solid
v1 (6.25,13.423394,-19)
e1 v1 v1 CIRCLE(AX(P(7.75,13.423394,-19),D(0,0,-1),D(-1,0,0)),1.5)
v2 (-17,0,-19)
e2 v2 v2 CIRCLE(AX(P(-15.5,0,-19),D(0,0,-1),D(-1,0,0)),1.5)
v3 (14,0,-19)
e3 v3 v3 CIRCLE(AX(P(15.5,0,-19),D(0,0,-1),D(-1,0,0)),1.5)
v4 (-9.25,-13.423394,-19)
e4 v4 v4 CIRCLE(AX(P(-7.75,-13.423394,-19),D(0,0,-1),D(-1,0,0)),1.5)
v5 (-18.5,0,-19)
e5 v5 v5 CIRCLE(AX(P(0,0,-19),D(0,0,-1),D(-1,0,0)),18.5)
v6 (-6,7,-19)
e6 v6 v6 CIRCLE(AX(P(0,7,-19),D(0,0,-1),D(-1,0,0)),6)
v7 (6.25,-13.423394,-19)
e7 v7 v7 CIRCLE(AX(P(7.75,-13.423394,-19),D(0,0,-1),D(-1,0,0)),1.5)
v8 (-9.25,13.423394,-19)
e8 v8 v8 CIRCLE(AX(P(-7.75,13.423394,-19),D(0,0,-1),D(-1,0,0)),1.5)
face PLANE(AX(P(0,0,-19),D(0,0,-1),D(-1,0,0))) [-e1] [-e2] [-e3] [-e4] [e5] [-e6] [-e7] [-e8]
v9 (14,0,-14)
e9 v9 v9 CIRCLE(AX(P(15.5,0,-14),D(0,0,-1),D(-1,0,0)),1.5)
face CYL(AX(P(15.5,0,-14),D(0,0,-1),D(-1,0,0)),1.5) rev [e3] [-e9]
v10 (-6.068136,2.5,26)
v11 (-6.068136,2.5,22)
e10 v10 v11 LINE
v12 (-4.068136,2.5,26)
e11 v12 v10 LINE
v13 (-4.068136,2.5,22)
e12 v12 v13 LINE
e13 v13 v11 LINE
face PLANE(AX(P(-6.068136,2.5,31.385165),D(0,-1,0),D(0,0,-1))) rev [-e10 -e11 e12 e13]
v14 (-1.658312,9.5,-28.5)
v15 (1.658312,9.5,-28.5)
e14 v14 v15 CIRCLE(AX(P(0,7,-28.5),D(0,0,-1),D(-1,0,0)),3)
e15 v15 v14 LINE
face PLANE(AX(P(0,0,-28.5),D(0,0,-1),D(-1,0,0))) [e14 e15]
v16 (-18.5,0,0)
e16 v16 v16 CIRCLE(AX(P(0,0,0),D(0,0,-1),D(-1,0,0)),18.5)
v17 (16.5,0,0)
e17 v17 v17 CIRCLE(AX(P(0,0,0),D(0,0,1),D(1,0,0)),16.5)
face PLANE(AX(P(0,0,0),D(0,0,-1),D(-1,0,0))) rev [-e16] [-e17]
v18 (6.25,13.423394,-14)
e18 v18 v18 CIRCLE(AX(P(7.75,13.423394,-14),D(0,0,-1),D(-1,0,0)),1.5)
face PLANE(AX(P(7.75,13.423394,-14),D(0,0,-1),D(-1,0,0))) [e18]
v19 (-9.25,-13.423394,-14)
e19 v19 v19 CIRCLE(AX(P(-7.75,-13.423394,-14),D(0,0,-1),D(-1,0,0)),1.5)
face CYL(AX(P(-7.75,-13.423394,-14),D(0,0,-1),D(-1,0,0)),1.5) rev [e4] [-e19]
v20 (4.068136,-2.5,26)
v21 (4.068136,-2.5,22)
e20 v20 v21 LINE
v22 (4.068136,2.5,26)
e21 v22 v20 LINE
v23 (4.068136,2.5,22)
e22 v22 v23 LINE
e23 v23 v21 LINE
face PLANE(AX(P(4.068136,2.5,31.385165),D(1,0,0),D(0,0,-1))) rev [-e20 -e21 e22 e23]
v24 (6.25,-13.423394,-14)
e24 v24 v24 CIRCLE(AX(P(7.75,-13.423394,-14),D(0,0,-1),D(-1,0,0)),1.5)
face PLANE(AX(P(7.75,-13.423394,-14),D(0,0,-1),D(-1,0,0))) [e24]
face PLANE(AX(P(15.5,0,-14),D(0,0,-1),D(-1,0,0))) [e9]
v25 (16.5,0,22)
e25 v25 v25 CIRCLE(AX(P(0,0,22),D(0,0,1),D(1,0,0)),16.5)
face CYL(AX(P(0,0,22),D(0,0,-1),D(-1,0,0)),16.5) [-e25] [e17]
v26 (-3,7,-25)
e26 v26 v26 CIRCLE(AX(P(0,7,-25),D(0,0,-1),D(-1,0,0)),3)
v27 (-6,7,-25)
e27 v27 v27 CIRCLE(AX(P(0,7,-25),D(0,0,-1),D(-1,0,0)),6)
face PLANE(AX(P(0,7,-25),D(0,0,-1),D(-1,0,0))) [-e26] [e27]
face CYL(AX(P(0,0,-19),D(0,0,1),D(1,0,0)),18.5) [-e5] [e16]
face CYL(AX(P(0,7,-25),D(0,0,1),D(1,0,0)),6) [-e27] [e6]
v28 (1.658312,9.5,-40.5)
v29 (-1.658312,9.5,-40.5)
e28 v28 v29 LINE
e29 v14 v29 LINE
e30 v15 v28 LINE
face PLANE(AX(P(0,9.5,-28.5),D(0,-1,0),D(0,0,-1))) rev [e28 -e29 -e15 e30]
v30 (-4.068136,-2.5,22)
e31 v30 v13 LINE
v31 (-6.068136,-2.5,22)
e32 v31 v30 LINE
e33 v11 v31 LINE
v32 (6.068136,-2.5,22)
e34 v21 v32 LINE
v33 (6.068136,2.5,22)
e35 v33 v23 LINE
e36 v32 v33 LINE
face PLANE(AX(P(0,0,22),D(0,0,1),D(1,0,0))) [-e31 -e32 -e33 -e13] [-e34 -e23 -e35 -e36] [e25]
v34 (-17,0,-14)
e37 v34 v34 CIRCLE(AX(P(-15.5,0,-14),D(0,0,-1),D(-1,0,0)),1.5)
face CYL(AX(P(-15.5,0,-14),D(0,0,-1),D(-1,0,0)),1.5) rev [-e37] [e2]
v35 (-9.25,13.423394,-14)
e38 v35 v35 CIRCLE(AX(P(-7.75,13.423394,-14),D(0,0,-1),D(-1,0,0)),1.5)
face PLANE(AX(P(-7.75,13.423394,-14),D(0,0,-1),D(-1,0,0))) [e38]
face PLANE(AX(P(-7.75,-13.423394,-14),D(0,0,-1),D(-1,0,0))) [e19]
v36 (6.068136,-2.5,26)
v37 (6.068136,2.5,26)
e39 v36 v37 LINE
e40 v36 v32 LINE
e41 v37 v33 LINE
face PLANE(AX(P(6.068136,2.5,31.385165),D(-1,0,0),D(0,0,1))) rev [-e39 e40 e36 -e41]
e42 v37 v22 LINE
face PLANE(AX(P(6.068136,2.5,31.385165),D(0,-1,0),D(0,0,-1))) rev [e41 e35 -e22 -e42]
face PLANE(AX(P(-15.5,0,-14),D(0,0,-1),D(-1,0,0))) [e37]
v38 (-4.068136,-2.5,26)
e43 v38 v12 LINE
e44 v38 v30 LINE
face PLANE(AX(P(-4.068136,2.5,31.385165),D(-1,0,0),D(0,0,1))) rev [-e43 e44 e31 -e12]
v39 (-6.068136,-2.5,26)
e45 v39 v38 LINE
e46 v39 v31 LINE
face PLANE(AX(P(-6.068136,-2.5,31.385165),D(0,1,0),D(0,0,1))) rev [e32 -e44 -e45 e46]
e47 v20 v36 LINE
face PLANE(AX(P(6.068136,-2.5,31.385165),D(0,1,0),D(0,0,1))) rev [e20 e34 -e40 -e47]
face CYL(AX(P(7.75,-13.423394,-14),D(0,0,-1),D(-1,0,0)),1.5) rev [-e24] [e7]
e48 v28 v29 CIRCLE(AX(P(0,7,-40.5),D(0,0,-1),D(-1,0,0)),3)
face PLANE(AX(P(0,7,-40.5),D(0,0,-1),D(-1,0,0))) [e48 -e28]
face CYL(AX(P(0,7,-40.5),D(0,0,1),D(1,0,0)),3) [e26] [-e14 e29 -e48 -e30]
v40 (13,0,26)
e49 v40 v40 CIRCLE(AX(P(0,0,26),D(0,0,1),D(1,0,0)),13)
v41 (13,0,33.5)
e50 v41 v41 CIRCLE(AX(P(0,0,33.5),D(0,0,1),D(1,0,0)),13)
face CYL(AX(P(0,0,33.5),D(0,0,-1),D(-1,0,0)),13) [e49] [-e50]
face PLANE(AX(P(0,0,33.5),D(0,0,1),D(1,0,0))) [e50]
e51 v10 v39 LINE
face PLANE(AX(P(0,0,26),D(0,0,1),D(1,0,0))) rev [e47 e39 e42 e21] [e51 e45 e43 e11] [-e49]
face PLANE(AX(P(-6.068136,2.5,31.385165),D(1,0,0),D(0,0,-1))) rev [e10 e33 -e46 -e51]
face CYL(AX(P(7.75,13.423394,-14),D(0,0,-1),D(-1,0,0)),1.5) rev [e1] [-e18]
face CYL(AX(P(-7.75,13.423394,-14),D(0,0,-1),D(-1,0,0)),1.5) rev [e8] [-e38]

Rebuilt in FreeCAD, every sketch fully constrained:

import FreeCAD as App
import Part
import Sketcher
Q = App.Units.Quantity

doc = App.newDocument("Part")
body = doc.addObject("PartDesign::Body", "Body")

sketch1 = doc.addObject("Sketcher::SketchObject", "Sketch")
body.addObject(sketch1)
sketch1.AttachmentSupport = (doc.XY_Plane, [""])
sketch1.MapMode = "FlatFace"
sketch1.addGeometry(Part.Circle(App.Vector(0, 0, 0), App.Vector(0, 0, 1), 16.5), False)
sketch1.addConstraint(Sketcher.Constraint("Coincident", 0, 3, -1, 1))
sketch1.addConstraint(Sketcher.Constraint("Diameter", 0, Q("33 mm")))
pad1 = doc.addObject("PartDesign::Pad", "Pad")
body.addObject(pad1)
pad1.Profile = sketch1
pad1.Length = 22

sketch2 = doc.addObject("Sketcher::SketchObject", "Sketch001")
body.addObject(sketch2)
sketch2.AttachmentSupport = (doc.XY_Plane, [""])
sketch2.MapMode = "FlatFace"
sketch2.addGeometry(Part.Circle(App.Vector(0, 0, 0), App.Vector(0, 0, 1), 18.5), False)
sketch2.addConstraint(Sketcher.Constraint("Coincident", 0, 3, -1, 1))
sketch2.addConstraint(Sketcher.Constraint("Diameter", 0, Q("37 mm")))
pad2 = doc.addObject("PartDesign::Pad", "Pad001")
body.addObject(pad2)
pad2.Profile = sketch2
pad2.Length = 19
pad2.Reversed = True

sketch3 = doc.addObject("Sketcher::SketchObject", "Sketch002")
body.addObject(sketch3)
sketch3.AttachmentSupport = (doc.XY_Plane, [""])
sketch3.MapMode = "FlatFace"
sketch3.AttachmentOffset = App.Placement(App.Vector(0, 0, -19), App.Rotation())
sketch3.addGeometry(Part.Circle(App.Vector(0, 7, 0), App.Vector(0, 0, 1), 6), False)
sketch3.addConstraint(Sketcher.Constraint("PointOnObject", 0, 3, -2))
sketch3.addConstraint(Sketcher.Constraint("Diameter", 0, Q("12 mm")))
sketch3.addConstraint(Sketcher.Constraint("DistanceY", -1, 1, 0, 3, Q("7 mm")))
pad3 = doc.addObject("PartDesign::Pad", "Pad002")
body.addObject(pad3)
pad3.Profile = sketch3
pad3.Length = 6
pad3.Reversed = True

sketch4 = doc.addObject("Sketcher::SketchObject", "Sketch003")
body.addObject(sketch4)
sketch4.AttachmentSupport = (doc.XY_Plane, [""])
sketch4.MapMode = "FlatFace"
sketch4.AttachmentOffset = App.Placement(App.Vector(0, 0, -25), App.Rotation())
sketch4.addGeometry(Part.Circle(App.Vector(0, 7, 0), App.Vector(0, 0, 1), 3), False)
sketch4.addConstraint(Sketcher.Constraint("PointOnObject", 0, 3, -2))
sketch4.addConstraint(Sketcher.Constraint("Diameter", 0, Q("6 mm")))
sketch4.addConstraint(Sketcher.Constraint("DistanceY", -1, 1, 0, 3, Q("7 mm")))
pad4 = doc.addObject("PartDesign::Pad", "Pad003")
body.addObject(pad4)
pad4.Profile = sketch4
pad4.Length = 15.5
pad4.Reversed = True

sketch5 = doc.addObject("Sketcher::SketchObject", "Sketch004")
body.addObject(sketch5)
sketch5.AttachmentSupport = (doc.XY_Plane, [""])
sketch5.MapMode = "FlatFace"
sketch5.AttachmentOffset = App.Placement(App.Vector(0, 0, -40.5), App.Rotation())
sketch5.addGeometry(Part.LineSegment(App.Vector(80.66143, 9.5, 0), App.Vector(-80.66143, 9.5, 0)), False)
sketch5.addGeometry(Part.LineSegment(App.Vector(-80.66143, 9.5, 0), App.Vector(-80.66143, 167.506235, 0)), False)
sketch5.addGeometry(Part.LineSegment(App.Vector(-80.66143, 167.506235, 0), App.Vector(80.66143, 167.506235, 0)), False)
sketch5.addGeometry(Part.LineSegment(App.Vector(80.66143, 167.506235, 0), App.Vector(80.66143, 9.5, 0)), False)
sketch5.addConstraint(Sketcher.Constraint("Coincident", 0, 2, 1, 1))
sketch5.addConstraint(Sketcher.Constraint("Coincident", 1, 2, 2, 1))
sketch5.addConstraint(Sketcher.Constraint("Coincident", 2, 2, 3, 1))
sketch5.addConstraint(Sketcher.Constraint("Coincident", 3, 2, 0, 1))
sketch5.addConstraint(Sketcher.Constraint("Horizontal", 0))
sketch5.addConstraint(Sketcher.Constraint("Vertical", 1))
sketch5.addConstraint(Sketcher.Constraint("Horizontal", 2))
sketch5.addConstraint(Sketcher.Constraint("Vertical", 3))
sketch5.addConstraint(Sketcher.Constraint("DistanceY", -1, 1, 0, 2, Q("9.5 mm")))
sketch5.addConstraint(Sketcher.Constraint("DistanceX", 0, 2, 0, 1, Q("161.32286 mm")))
sketch5.addConstraint(Sketcher.Constraint("DistanceY", 1, 1, 1, 2, Q("158.006235 mm")))
sketch5.addConstraint(Sketcher.Constraint("DistanceX", 0, 2, -1, 1, Q("80.66143 mm")))
pocket1 = doc.addObject("PartDesign::Pocket", "Pocket")
body.addObject(pocket1)
pocket1.Profile = sketch5
pocket1.Length = 12
pocket1.Reversed = True

sketch6 = doc.addObject("Sketcher::SketchObject", "Sketch005")
body.addObject(sketch6)
sketch6.AttachmentSupport = (doc.XY_Plane, [""])
sketch6.MapMode = "FlatFace"
sketch6.AttachmentOffset = App.Placement(App.Vector(0, 0, -19), App.Rotation())
sketch6.addGeometry(Part.Circle(App.Vector(15.5, 0, 0), App.Vector(0, 0, 1), 1.5), False)
sketch6.addGeometry(Part.Circle(App.Vector(7.75, 13.423394, 0), App.Vector(0, 0, 1), 1.5), False)
sketch6.addGeometry(Part.Circle(App.Vector(-7.75, 13.423394, 0), App.Vector(0, 0, 1), 1.5), False)
sketch6.addGeometry(Part.Circle(App.Vector(-15.5, 0, 0), App.Vector(0, 0, 1), 1.5), False)
sketch6.addGeometry(Part.Circle(App.Vector(-7.75, -13.423394, 0), App.Vector(0, 0, 1), 1.5), False)
sketch6.addGeometry(Part.Circle(App.Vector(7.75, -13.423394, 0), App.Vector(0, 0, 1), 1.5), False)
sketch6.addConstraint(Sketcher.Constraint("Equal", 0, 1))
sketch6.addConstraint(Sketcher.Constraint("Equal", 1, 2))
sketch6.addConstraint(Sketcher.Constraint("Equal", 2, 3))
sketch6.addConstraint(Sketcher.Constraint("Equal", 3, 4))
sketch6.addConstraint(Sketcher.Constraint("Equal", 4, 5))
sketch6.addConstraint(Sketcher.Constraint("Symmetric", 0, 3, 3, 3, -1, 1))
sketch6.addConstraint(Sketcher.Constraint("Symmetric", 1, 3, 4, 3, -1, 1))
sketch6.addConstraint(Sketcher.Constraint("Symmetric", 2, 3, 5, 3, -1, 1))
sketch6.addConstraint(Sketcher.Constraint("Symmetric", 1, 3, 2, 3, -2))
sketch6.addConstraint(Sketcher.Constraint("PointOnObject", 0, 3, -1))
sketch6.addConstraint(Sketcher.Constraint("Diameter", 0, Q("3 mm")))
sketch6.addConstraint(Sketcher.Constraint("DistanceX", 3, 3, 0, 3, Q("31 mm")))
sketch6.addConstraint(Sketcher.Constraint("DistanceX", 2, 3, 1, 3, Q("15.5 mm")))
sketch6.addConstraint(Sketcher.Constraint("DistanceY", -1, 1, 1, 3, Q("13.423394 mm")))
pocket2 = doc.addObject("PartDesign::Pocket", "Pocket001")
body.addObject(pocket2)
pocket2.Profile = sketch6
pocket2.Length = 5
pocket2.Reversed = True
body2 = doc.addObject("PartDesign::Body", "Body001")

sketch7 = doc.addObject("Sketcher::SketchObject", "Sketch006")
body2.addObject(sketch7)
sketch7.AttachmentSupport = (doc.getObject("XY_Plane001"), [""])
sketch7.MapMode = "FlatFace"
sketch7.AttachmentOffset = App.Placement(App.Vector(0, 0, 26), App.Rotation())
sketch7.addGeometry(Part.Circle(App.Vector(0, 0, 0), App.Vector(0, 0, 1), 13), False)
sketch7.addConstraint(Sketcher.Constraint("Coincident", 0, 3, -1, 1))
sketch7.addConstraint(Sketcher.Constraint("Diameter", 0, Q("26 mm")))
pad5 = doc.addObject("PartDesign::Pad", "Pad004")
body2.addObject(pad5)
pad5.Profile = sketch7
pad5.Length = 7.5
body.AllowCompound = True
doc.recompute()

boolean = doc.addObject("PartDesign::Boolean", "Boolean")
body.addObject(boolean)
boolean.Type = "Fuse"
boolean.addObjects([body2])

sketch8 = doc.addObject("Sketcher::SketchObject", "Sketch007")
body.addObject(sketch8)
sketch8.AttachmentSupport = (doc.XY_Plane, [""])
sketch8.MapMode = "FlatFace"
sketch8.AttachmentOffset = App.Placement(App.Vector(0, 0, 22), App.Rotation())
sketch8.addGeometry(Part.LineSegment(App.Vector(-6.068136, 2.5, 0), App.Vector(-6.068136, -2.5, 0)), False)
sketch8.addGeometry(Part.LineSegment(App.Vector(-6.068136, -2.5, 0), App.Vector(-4.068136, -2.5, 0)), False)
sketch8.addGeometry(Part.LineSegment(App.Vector(-4.068136, -2.5, 0), App.Vector(-4.068136, 2.5, 0)), False)
sketch8.addGeometry(Part.LineSegment(App.Vector(-4.068136, 2.5, 0), App.Vector(-6.068136, 2.5, 0)), False)
sketch8.addGeometry(Part.LineSegment(App.Vector(4.068136, 2.5, 0), App.Vector(4.068136, -2.5, 0)), False)
sketch8.addGeometry(Part.LineSegment(App.Vector(4.068136, -2.5, 0), App.Vector(6.068136, -2.5, 0)), False)
sketch8.addGeometry(Part.LineSegment(App.Vector(6.068136, -2.5, 0), App.Vector(6.068136, 2.5, 0)), False)
sketch8.addGeometry(Part.LineSegment(App.Vector(6.068136, 2.5, 0), App.Vector(4.068136, 2.5, 0)), False)
sketch8.addConstraint(Sketcher.Constraint("Coincident", 0, 2, 1, 1))
sketch8.addConstraint(Sketcher.Constraint("Coincident", 1, 2, 2, 1))
sketch8.addConstraint(Sketcher.Constraint("Coincident", 2, 2, 3, 1))
sketch8.addConstraint(Sketcher.Constraint("Coincident", 3, 2, 0, 1))
sketch8.addConstraint(Sketcher.Constraint("Coincident", 4, 2, 5, 1))
sketch8.addConstraint(Sketcher.Constraint("Coincident", 5, 2, 6, 1))
sketch8.addConstraint(Sketcher.Constraint("Coincident", 6, 2, 7, 1))
sketch8.addConstraint(Sketcher.Constraint("Coincident", 7, 2, 4, 1))
sketch8.addConstraint(Sketcher.Constraint("Vertical", 0))
sketch8.addConstraint(Sketcher.Constraint("Horizontal", 1))
sketch8.addConstraint(Sketcher.Constraint("Vertical", 2))
sketch8.addConstraint(Sketcher.Constraint("Horizontal", 3))
sketch8.addConstraint(Sketcher.Constraint("Vertical", 4))
sketch8.addConstraint(Sketcher.Constraint("Horizontal", 5))
sketch8.addConstraint(Sketcher.Constraint("Vertical", 6))
sketch8.addConstraint(Sketcher.Constraint("Horizontal", 7))
sketch8.addConstraint(Sketcher.Constraint("Symmetric", 2, 2, 4, 2, -1, 1))
sketch8.addConstraint(Sketcher.Constraint("Symmetric", 0, 2, 6, 2, -1, 1))
sketch8.addConstraint(Sketcher.Constraint("Horizontal", 1, 2, 4, 2))
sketch8.addConstraint(Sketcher.Constraint("DistanceX", 1, 1, 1, 2, Q("2 mm")))
sketch8.addConstraint(Sketcher.Constraint("DistanceY", 0, 2, 0, 1, Q("5 mm")))
sketch8.addConstraint(Sketcher.Constraint("DistanceX", 1, 2, 4, 2, Q("8.136271 mm")))
pad6 = doc.addObject("PartDesign::Pad", "Pad005")
body.addObject(pad6)
pad6.Profile = sketch8
pad6.Length = 4

doc.recompute()
